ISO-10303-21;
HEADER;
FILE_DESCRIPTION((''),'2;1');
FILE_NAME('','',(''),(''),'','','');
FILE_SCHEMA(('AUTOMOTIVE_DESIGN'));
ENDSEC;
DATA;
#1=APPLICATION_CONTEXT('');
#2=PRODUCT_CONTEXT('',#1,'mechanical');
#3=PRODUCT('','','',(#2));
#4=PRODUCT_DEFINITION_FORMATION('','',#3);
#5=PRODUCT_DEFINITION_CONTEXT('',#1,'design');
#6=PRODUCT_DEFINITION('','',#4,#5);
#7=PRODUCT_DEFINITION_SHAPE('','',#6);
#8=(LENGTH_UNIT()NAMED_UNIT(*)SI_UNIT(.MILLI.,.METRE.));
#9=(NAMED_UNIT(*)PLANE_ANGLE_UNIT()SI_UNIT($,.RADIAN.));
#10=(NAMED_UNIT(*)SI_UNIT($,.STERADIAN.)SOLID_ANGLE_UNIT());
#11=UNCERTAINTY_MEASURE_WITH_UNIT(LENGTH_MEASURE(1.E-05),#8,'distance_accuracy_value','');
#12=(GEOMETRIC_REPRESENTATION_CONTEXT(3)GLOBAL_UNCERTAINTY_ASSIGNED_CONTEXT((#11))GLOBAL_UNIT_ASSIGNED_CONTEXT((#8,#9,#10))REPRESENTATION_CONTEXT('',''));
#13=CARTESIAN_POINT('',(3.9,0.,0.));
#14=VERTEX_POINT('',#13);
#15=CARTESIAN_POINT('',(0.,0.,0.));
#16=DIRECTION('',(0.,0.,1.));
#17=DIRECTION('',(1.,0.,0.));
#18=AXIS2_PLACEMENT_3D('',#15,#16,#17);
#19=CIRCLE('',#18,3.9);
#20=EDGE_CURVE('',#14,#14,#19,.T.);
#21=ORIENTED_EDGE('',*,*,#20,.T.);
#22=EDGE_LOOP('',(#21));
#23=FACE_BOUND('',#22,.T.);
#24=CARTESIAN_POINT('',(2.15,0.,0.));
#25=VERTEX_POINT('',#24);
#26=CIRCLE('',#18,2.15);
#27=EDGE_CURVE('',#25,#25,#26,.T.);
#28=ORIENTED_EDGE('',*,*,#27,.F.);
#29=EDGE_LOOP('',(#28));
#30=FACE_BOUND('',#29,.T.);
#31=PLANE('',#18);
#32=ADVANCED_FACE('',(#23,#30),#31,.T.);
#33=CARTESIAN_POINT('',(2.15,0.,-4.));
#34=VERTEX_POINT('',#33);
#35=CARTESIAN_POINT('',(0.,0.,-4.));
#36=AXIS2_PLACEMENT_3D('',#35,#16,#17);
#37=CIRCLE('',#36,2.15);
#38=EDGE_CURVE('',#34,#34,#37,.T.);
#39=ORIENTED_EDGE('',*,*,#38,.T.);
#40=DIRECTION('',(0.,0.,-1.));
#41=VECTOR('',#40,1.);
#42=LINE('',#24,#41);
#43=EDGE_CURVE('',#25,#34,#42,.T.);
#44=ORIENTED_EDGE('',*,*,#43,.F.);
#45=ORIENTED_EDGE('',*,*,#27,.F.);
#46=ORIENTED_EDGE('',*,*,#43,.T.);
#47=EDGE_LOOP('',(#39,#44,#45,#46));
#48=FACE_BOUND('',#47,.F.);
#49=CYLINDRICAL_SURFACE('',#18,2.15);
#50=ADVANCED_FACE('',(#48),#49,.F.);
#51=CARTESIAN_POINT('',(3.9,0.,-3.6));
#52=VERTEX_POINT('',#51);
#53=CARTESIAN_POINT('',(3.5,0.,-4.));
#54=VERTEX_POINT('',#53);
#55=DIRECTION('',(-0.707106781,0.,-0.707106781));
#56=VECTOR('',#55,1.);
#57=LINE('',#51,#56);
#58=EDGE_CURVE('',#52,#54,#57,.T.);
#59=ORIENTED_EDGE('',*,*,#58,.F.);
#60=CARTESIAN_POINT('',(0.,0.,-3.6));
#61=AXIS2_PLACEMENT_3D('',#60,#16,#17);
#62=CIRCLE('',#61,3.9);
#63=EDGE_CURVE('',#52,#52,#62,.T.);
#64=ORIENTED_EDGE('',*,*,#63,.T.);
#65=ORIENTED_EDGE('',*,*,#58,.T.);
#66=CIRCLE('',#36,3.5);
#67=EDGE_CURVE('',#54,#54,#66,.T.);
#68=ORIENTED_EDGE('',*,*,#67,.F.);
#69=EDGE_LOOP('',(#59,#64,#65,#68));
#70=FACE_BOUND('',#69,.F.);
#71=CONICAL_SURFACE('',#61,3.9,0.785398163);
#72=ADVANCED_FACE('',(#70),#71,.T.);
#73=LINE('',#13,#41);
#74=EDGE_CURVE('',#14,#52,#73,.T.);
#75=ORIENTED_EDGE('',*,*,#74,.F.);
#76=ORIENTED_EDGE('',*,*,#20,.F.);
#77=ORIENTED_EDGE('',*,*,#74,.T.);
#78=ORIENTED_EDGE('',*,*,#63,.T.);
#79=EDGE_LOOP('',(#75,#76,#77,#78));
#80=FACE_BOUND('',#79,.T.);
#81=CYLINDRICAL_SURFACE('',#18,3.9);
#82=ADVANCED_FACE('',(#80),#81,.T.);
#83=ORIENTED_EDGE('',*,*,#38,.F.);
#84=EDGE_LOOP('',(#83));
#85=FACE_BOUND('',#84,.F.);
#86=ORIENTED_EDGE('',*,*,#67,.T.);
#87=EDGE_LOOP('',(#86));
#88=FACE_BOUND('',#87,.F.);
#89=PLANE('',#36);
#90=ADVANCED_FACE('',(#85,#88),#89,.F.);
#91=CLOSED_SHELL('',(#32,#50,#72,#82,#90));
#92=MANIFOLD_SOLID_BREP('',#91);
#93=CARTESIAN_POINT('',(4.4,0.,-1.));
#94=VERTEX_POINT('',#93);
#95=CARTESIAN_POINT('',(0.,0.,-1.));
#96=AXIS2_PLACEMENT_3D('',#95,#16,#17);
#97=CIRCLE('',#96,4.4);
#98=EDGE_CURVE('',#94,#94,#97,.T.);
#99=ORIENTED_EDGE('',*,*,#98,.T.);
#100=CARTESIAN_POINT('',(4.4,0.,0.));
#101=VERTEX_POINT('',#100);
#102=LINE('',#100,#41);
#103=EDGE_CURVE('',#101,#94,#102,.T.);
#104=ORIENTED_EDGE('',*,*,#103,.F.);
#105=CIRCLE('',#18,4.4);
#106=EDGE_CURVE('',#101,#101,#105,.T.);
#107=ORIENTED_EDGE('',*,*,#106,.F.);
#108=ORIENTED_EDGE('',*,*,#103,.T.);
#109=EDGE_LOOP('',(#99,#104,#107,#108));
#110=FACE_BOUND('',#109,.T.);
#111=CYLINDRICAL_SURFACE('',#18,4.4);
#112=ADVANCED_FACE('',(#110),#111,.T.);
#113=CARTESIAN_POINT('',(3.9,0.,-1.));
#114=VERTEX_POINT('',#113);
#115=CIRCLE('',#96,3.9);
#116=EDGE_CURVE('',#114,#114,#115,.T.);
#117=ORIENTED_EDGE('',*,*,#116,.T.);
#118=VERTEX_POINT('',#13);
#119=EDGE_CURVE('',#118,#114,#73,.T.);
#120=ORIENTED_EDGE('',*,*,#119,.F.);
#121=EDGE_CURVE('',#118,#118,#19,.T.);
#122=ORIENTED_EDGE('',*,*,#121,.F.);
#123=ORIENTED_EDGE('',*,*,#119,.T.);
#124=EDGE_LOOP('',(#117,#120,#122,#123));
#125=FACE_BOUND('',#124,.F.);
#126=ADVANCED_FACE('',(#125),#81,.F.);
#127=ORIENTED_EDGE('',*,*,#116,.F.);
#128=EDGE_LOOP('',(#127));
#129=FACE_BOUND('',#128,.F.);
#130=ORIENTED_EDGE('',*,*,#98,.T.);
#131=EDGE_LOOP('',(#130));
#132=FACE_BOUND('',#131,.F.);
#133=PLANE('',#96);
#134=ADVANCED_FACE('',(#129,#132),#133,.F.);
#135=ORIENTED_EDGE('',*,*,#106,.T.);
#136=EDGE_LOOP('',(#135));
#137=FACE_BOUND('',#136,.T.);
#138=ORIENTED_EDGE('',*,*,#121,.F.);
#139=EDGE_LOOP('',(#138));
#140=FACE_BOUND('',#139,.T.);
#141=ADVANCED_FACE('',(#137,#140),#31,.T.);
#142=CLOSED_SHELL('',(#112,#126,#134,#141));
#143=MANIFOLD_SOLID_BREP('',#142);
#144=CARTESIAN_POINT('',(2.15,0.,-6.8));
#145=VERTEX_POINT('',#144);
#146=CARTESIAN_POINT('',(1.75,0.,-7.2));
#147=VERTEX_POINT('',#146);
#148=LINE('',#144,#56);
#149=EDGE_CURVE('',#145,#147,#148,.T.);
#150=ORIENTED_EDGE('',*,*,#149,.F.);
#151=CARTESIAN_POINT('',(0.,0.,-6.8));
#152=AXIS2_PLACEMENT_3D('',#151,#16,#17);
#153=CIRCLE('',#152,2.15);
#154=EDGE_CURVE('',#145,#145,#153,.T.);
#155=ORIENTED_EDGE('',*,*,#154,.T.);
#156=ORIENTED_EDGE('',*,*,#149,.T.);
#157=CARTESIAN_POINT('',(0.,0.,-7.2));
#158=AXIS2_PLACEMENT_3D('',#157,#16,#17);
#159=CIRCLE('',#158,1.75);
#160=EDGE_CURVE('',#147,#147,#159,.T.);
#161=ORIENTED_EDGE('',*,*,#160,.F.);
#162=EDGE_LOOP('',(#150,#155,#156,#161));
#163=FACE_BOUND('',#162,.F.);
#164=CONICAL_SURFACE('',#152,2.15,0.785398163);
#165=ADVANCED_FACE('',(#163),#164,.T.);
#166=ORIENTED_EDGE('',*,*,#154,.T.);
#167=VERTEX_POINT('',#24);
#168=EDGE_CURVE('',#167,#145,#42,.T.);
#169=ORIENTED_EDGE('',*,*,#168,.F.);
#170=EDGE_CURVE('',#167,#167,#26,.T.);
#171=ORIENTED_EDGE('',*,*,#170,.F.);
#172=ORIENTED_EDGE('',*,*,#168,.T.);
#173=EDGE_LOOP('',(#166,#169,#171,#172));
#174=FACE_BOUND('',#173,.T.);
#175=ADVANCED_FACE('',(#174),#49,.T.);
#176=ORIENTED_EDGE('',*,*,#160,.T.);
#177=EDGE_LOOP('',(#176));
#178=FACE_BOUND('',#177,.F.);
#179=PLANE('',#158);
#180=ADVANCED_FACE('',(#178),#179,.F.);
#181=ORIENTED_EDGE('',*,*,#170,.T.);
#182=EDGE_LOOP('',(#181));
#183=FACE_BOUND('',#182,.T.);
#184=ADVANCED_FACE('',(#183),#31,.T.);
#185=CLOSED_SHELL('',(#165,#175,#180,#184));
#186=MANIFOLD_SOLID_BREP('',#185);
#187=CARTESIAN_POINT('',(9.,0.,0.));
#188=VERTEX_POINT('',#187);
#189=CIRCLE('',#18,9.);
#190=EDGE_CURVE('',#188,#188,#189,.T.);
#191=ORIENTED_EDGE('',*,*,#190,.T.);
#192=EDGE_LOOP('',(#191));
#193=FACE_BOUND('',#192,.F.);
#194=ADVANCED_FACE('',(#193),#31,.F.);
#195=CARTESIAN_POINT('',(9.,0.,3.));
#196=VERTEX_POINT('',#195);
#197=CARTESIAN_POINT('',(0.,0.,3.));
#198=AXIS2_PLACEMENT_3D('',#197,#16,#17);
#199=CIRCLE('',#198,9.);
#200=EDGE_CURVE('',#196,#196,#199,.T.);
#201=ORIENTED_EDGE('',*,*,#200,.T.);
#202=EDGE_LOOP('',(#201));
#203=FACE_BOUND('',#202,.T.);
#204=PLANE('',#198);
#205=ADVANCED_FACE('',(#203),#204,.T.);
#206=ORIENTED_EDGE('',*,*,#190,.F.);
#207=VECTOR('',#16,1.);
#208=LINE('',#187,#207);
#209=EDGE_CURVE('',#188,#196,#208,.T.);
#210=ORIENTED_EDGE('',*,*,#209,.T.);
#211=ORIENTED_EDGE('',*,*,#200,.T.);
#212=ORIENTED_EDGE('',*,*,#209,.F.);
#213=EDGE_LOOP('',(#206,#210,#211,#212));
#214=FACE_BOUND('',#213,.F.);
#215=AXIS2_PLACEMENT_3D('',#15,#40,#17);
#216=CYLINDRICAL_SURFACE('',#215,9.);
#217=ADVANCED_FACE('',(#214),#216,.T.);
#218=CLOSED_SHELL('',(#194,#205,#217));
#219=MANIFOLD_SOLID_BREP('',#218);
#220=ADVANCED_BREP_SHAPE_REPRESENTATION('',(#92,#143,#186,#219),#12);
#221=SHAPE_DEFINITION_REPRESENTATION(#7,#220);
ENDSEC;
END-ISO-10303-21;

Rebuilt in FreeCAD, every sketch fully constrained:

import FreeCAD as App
import Part
import Sketcher

V = App.Vector
Q = App.Units.Quantity


def edges_at(feature, points):
    """Names of the edges that pass closest to the given points."""
    edges = feature.Shape.Edges
    near = lambda p: min(range(len(edges)), key=lambda i: edges[i].distToShape(Part.Vertex(*p))[0])
    return sorted({f"Edge{near(p) + 1}" for p in points})

doc = App.newDocument("Part")
body = doc.addObject("PartDesign::Body", "Body")

# Sketch on XY plane
sketch1 = doc.addObject("Sketcher::SketchObject", "Sketch")
body.addObject(sketch1)
sketch1.AttachmentSupport = (doc.XY_Plane, [""])
sketch1.MapMode = "FlatFace"
sketch1.addGeometry([
    Part.Circle(V(0, 0, 0), V(0, 0, 1), 4.4),
    Part.Circle(V(0, 0, 0), V(0, 0, 1), 3.9),
], False)
sketch1.addConstraint([
    Sketcher.Constraint("Coincident", 0, 3, -1, 1),
    Sketcher.Constraint("Coincident", 1, 3, -1, 1),
    Sketcher.Constraint("Diameter", 0, Q("8.8 mm")),
    Sketcher.Constraint("Diameter", 1, Q("7.8 mm")),
])
pad1 = doc.addObject("PartDesign::Pad", "Pad")
body.addObject(pad1)
pad1.Profile = sketch1
pad1.Length = 1
pad1.Reversed = True
body2 = doc.addObject("PartDesign::Body", "Body001")

# Sketch on XY plane
sketch2 = doc.addObject("Sketcher::SketchObject", "Sketch001")
body2.addObject(sketch2)
sketch2.AttachmentSupport = (doc.getObject("XY_Plane001"), [""])
sketch2.MapMode = "FlatFace"
sketch2.addGeometry([
    Part.Circle(V(0, 0, 0), V(0, 0, 1), 3.9),
    Part.Circle(V(0, 0, 0), V(0, 0, 1), 2.15),
], False)
sketch2.addConstraint([
    Sketcher.Constraint("Coincident", 0, 3, -1, 1),
    Sketcher.Constraint("Coincident", 1, 3, -1, 1),
    Sketcher.Constraint("Diameter", 0, Q("7.8 mm")),
    Sketcher.Constraint("Diameter", 1, Q("4.3 mm")),
])
pad2 = doc.addObject("PartDesign::Pad", "Pad001")
body2.addObject(pad2)
pad2.Profile = sketch2
pad2.Length = 4
pad2.Reversed = True
doc.recompute()

chamfer = doc.addObject("PartDesign::Chamfer", "Chamfer")
body2.addObject(chamfer)
chamfer.Base = (pad2, edges_at(pad2, [(-3.9, 0, -4)]))
chamfer.Size = 0.4
body3 = doc.addObject("PartDesign::Body", "Body002")

# Sketch on XY plane
sketch3 = doc.addObject("Sketcher::SketchObject", "Sketch002")
body3.addObject(sketch3)
sketch3.AttachmentSupport = (doc.getObject("XY_Plane002"), [""])
sketch3.MapMode = "FlatFace"
sketch3.addGeometry(Part.Circle(V(0, 0, 0), V(0, 0, 1), 2.15), False)
sketch3.addConstraint([
    Sketcher.Constraint("Coincident", 0, 3, -1, 1),
    Sketcher.Constraint("Diameter", 0, Q("4.3 mm")),
])
pad3 = doc.addObject("PartDesign::Pad", "Pad002")
body3.addObject(pad3)
pad3.Profile = sketch3
pad3.Length = 7.2
pad3.Reversed = True
doc.recompute()

chamfer2 = doc.addObject("PartDesign::Chamfer", "Chamfer001")
body3.addObject(chamfer2)
chamfer2.Base = (pad3, edges_at(pad3, [(-2.15, 0, -7.2)]))
chamfer2.Size = 0.4
body4 = doc.addObject("PartDesign::Body", "Body003")

# Sketch on XY plane
sketch4 = doc.addObject("Sketcher::SketchObject", "Sketch003")
body4.addObject(sketch4)
sketch4.AttachmentSupport = (doc.getObject("XY_Plane003"), [""])
sketch4.MapMode = "FlatFace"
sketch4.addGeometry(Part.Circle(V(0, 0, 0), V(0, 0, 1), 9), False)
sketch4.addConstraint([
    Sketcher.Constraint("Coincident", 0, 3, -1, 1),
    Sketcher.Constraint("Diameter", 0, Q("18 mm")),
])
pad4 = doc.addObject("PartDesign::Pad", "Pad003")
body4.addObject(pad4)
pad4.Profile = sketch4
pad4.Length = 3

doc.recompute()
